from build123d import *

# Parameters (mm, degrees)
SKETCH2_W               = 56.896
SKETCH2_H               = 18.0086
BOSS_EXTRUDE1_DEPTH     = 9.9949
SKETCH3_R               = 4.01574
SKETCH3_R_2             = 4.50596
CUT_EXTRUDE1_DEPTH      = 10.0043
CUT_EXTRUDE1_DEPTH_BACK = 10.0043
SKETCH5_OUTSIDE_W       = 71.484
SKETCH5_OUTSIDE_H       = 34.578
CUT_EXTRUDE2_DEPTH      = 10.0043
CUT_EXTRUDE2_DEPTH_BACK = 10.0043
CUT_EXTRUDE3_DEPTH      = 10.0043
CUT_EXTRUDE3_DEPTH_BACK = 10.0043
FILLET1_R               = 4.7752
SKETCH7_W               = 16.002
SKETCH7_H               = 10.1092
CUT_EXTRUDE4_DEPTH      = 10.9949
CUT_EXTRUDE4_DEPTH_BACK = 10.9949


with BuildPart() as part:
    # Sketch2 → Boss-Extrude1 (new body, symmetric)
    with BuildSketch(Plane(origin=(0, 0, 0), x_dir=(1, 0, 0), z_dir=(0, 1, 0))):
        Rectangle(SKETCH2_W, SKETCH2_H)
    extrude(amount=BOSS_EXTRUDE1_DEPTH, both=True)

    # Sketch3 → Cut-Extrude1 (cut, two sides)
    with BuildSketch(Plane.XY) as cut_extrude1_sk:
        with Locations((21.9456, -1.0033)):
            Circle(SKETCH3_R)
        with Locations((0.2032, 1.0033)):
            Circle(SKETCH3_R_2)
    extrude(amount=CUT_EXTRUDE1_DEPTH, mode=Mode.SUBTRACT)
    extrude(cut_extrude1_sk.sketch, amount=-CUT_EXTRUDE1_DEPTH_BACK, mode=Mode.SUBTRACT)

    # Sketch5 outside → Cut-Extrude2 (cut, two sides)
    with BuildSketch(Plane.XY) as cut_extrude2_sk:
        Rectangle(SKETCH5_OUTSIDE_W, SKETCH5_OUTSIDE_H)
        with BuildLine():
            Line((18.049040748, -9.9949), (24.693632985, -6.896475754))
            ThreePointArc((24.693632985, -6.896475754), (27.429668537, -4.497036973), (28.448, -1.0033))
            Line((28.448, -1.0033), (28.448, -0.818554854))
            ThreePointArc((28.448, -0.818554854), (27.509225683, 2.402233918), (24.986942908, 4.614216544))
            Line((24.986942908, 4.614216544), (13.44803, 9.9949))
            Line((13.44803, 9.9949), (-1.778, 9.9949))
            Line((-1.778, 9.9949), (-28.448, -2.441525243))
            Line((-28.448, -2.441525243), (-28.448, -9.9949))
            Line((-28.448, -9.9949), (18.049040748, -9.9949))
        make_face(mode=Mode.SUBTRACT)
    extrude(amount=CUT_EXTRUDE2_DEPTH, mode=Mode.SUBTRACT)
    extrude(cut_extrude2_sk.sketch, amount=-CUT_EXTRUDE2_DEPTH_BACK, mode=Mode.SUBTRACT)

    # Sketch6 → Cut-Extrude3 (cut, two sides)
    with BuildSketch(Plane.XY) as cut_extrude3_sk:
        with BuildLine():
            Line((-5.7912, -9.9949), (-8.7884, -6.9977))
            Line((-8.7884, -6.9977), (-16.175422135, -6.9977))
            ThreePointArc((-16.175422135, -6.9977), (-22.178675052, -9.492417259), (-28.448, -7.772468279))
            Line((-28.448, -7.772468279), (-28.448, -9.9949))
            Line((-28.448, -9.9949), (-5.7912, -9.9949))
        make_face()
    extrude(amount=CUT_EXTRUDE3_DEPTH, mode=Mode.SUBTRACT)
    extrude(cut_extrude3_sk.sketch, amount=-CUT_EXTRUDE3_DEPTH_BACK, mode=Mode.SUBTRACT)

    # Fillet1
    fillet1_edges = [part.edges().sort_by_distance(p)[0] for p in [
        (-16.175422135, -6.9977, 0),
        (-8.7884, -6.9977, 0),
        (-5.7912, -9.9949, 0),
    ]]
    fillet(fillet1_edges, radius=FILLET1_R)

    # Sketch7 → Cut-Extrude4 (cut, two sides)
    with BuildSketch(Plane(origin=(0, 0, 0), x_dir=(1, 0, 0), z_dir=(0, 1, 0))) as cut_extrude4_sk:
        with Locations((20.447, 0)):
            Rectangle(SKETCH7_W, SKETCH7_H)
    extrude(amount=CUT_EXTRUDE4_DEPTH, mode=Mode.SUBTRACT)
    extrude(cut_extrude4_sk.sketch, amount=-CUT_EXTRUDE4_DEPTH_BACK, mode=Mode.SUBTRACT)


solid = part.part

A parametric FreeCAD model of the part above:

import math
import FreeCAD as App
import Part
import Sketcher
from FreeCAD import Vector
Q = App.Units.Quantity


def edges_at(feature, points):
    """Names of the edges that pass closest to the given points."""
    edges = feature.Shape.Edges
    near = lambda p: min(range(len(edges)), key=lambda i: edges[i].distToShape(Part.Vertex(*p))[0])
    return sorted({f"Edge{near(p) + 1}" for p in points})


def add_polygon(sketch, points):
    """Adds a closed chain of lines whose ends are joined by coincident constraints."""
    first, n = sketch.GeometryCount, len(points)
    for a, b in zip(points, points[1:] + points[:1]):
        sketch.addGeometry(Part.LineSegment(App.Vector(*a, 0), App.Vector(*b, 0)), False)
    for i in range(n):
        sketch.addConstraint(Sketcher.Constraint("Coincident", first + i, 2, first + (i + 1) % n, 1))

doc = App.newDocument("Part")
params = doc.addObject("Spreadsheet::Sheet", "Params")
for row, (alias, value) in enumerate([
    ("sketch1_width", "2.24 in"),
    ("sketch1_height", "0.709 in"),
    ("pad1_length", "0.787 in"),
    ("sketch3_radius", "0.236 in"),
    ("sketch3_radius2", "0.256 in"),
    ("sketch4_radius", "0.394 in"),
    ("sketch4_width", "0.892 in"),
    ("fillet_radius", "0.188 in"),
    ("sketch5_width", "0.63 in"),
    ("sketch5_height", "0.398 in"),
], start=1):
    params.set(f"A{row}", alias)
    params.set(f"B{row}", "=" + value)
    params.setAlias(f"B{row}", alias)

body = doc.addObject("PartDesign::Body", "Body")

sketch1 = body.newObject("Sketcher::SketchObject", "Sketch")
sketch1.AttachmentSupport = (doc.getObject("XZ_Plane"), [""])
sketch1.MapMode = "FlatFace"
add_polygon(sketch1, [(-28.448, -9.0043), (-28.448, 9.0043), (28.448, 9.0043), (28.448, -9.0043)])
sketch1.addConstraint(Sketcher.Constraint("Vertical", 0))
sketch1.addConstraint(Sketcher.Constraint("Horizontal", 1))
sketch1.addConstraint(Sketcher.Constraint("Vertical", 2))
sketch1.addConstraint(Sketcher.Constraint("Horizontal", 3))
sketch1.addConstraint(Sketcher.Constraint("Symmetric", 0, 2, 2, 2, -1, 1))
sketch1.addConstraint(Sketcher.Constraint("DistanceX", 1, 1, 1, 2, Q("2.24 in")))
sketch1.addConstraint(Sketcher.Constraint("DistanceY", 0, 1, 0, 2, Q("0.709 in")))
sketch1.setExpression("Constraints[9]", "Params.sketch1_width")
sketch1.setExpression("Constraints[10]", "Params.sketch1_height")
pad1 = body.newObject("PartDesign::Pad", "Pad")
pad1.Profile = sketch1
pad1.setExpression("Length", "Params.pad1_length")
pad1.Midplane = True

sketch2 = body.newObject("Sketcher::SketchObject", "Sketch001")
sketch2.AttachmentSupport = (doc.getObject("XY_Plane"), [""])
sketch2.MapMode = "FlatFace"
sketch2.addGeometry(Part.Circle(Vector(21.9456, -1.0033, 0), Vector(0, 0, 1), 4.01574), False)
sketch2.addGeometry(Part.Circle(Vector(0.2032, 1.0033, 0), Vector(0, 0, 1), 4.50596), False)
sketch2.addConstraint(Sketcher.Constraint("Diameter", 0, Q("0.3162 in")))
sketch2.addConstraint(Sketcher.Constraint("Diameter", 1, Q("0.3548 in")))
sketch2.addConstraint(Sketcher.Constraint("DistanceX", -1, 1, 0, 3, Q("0.864 in")))
sketch2.addConstraint(Sketcher.Constraint("DistanceX", -1, 1, 1, 3, Q("0.008 in")))
sketch2.addConstraint(Sketcher.Constraint("DistanceY", 0, 3, 1, 3, Q("0.079 in")))
sketch2.addConstraint(Sketcher.Constraint("DistanceY", 0, 3, -1, 1, Q("0.0395 in")))
pocket1 = body.newObject("PartDesign::Pocket", "Pocket")
pocket1.Profile = sketch2
pocket1.Type = "ThroughAll"
pocket1.Midplane = True

sketch3 = body.newObject("Sketcher::SketchObject", "Sketch002")
sketch3.AttachmentSupport = (doc.getObject("XY_Plane"), [""])
sketch3.MapMode = "FlatFace"
add_polygon(sketch3, [(-35.742, 17.289), (-35.742, -17.289), (35.742, -17.289), (35.742, 17.289)])
sketch3.addGeometry(Part.LineSegment(Vector(24.693633, -6.896476, 0), Vector(18.049041, -9.9949, 0)), False)
sketch3.addGeometry(Part.LineSegment(Vector(18.049041, -9.9949, 0), Vector(-28.448, -9.9949, 0)), False)
sketch3.addGeometry(Part.LineSegment(Vector(-28.448, -9.9949, 0), Vector(-28.448, -2.441525, 0)), False)
sketch3.addGeometry(Part.LineSegment(Vector(-28.448, -2.441525, 0), Vector(-1.778, 9.9949, 0)), False)
sketch3.addGeometry(Part.LineSegment(Vector(-1.778, 9.9949, 0), Vector(13.44803, 9.9949, 0)), False)
sketch3.addGeometry(Part.LineSegment(Vector(13.44803, 9.9949, 0), Vector(24.986943, 4.614217, 0)), False)
sketch3.addGeometry(Part.ArcOfCircle(Part.Circle(Vector(22.4536, -0.818555, 0), Vector(0, 0, 1), 5.9944), math.radians(0), math.radians(65)), False)
sketch3.addGeometry(Part.LineSegment(Vector(28.448, -0.818555, 0), Vector(28.448, -1.0033, 0)), False)
sketch3.addGeometry(Part.ArcOfCircle(Part.Circle(Vector(21.9456, -1.0033, 0), Vector(0, 0, 1), 6.5024), math.radians(-65), math.radians(0)), False)
sketch3.addConstraint(Sketcher.Constraint("Coincident", 4, 2, 5, 1))
sketch3.addConstraint(Sketcher.Constraint("Coincident", 5, 2, 6, 1))
sketch3.addConstraint(Sketcher.Constraint("Coincident", 6, 2, 7, 1))
sketch3.addConstraint(Sketcher.Constraint("Coincident", 7, 2, 8, 1))
sketch3.addConstraint(Sketcher.Constraint("Coincident", 8, 2, 9, 1))
sketch3.addConstraint(Sketcher.Constraint("Tangent", 9, 2, 10, 2))
sketch3.addConstraint(Sketcher.Constraint("Tangent", 10, 1, 11, 1))
sketch3.addConstraint(Sketcher.Constraint("Tangent", 11, 2, 12, 2))
sketch3.addConstraint(Sketcher.Constraint("Tangent", 12, 1, 4, 1))
sketch3.addConstraint(Sketcher.Constraint("Vertical", 0))
sketch3.addConstraint(Sketcher.Constraint("Horizontal", 1))
sketch3.addConstraint(Sketcher.Constraint("Vertical", 2))
sketch3.addConstraint(Sketcher.Constraint("Horizontal", 3))
sketch3.addConstraint(Sketcher.Constraint("Horizontal", 5))
sketch3.addConstraint(Sketcher.Constraint("Vertical", 6))
sketch3.addConstraint(Sketcher.Constraint("Horizontal", 8))
sketch3.addConstraint(Sketcher.Constraint("Vertical", 11))
sketch3.addConstraint(Sketcher.Constraint("Symmetric", 0, 2, 2, 2, -1, 1))
sketch3.addConstraint(Sketcher.Constraint("Parallel", 4, 7))
sketch3.addConstraint(Sketcher.Constraint("Angle", 4, Q("-155 deg")))
sketch3.addConstraint(Sketcher.Constraint("Angle", 9, Q("-25 deg")))
sketch3.addConstraint(Sketcher.Constraint("Radius", 10, Q("0.236 in")))
sketch3.addConstraint(Sketcher.Constraint("Radius", 12, Q("0.256 in")))
sketch3.addConstraint(Sketcher.Constraint("DistanceX", 5, 2, -1, 1, Q("1.12 in")))
sketch3.addConstraint(Sketcher.Constraint("DistanceX", 7, 2, -1, 1, Q("0.07 in")))
sketch3.addConstraint(Sketcher.Constraint("DistanceX", -1, 1, 10, 1, Q("1.12 in")))
sketch3.addConstraint(Sketcher.Constraint("DistanceY", 4, 2, 12, 3, Q("0.354 in")))
sketch3.addConstraint(Sketcher.Constraint("DistanceY", 12, 3, 7, 2, Q("0.433 in")))
sketch3.addConstraint(Sketcher.Constraint("DistanceX", 1, 1, 1, 2, Q("71.484 mm")))
sketch3.addConstraint(Sketcher.Constraint("DistanceY", 0, 2, 0, 1, Q("34.578 mm")))
sketch3.addConstraint(Sketcher.Constraint("DistanceY", 12, 3, -1, 1, Q("0.0395 in")))
sketch3.addConstraint(Sketcher.Constraint("DistanceX", 8, 1, 8, 2, Q("15.22603 mm")))
sketch3.setExpression("Constraints[25]", "Params.sketch3_radius")
sketch3.setExpression("Constraints[26]", "Params.sketch3_radius2")
pocket2 = body.newObject("PartDesign::Pocket", "Pocket001")
pocket2.Profile = sketch3
pocket2.Type = "ThroughAll"
pocket2.Midplane = True

sketch4 = body.newObject("Sketcher::SketchObject", "Sketch003")
sketch4.AttachmentSupport = (doc.getObject("XY_Plane"), [""])
sketch4.MapMode = "FlatFace"
sketch4.addGeometry(Part.LineSegment(Vector(-5.7912, -9.9949, 0), Vector(-8.7884, -6.9977, 0)), False)
sketch4.addGeometry(Part.LineSegment(Vector(-8.7884, -6.9977, 0), Vector(-16.175422, -6.9977, 0)), False)
sketch4.addGeometry(Part.ArcOfCircle(Part.Circle(Vector(-22.8092, 0.4953, 0), Vector(0, 0, 1), 10.0076), math.radians(-124.294849), math.radians(-48.480569)), False)
sketch4.addGeometry(Part.LineSegment(Vector(-28.448, -7.772468, 0), Vector(-28.448, -9.9949, 0)), False)
sketch4.addGeometry(Part.LineSegment(Vector(-28.448, -9.9949, 0), Vector(-5.7912, -9.9949, 0)), False)
sketch4.addConstraint(Sketcher.Constraint("Coincident", 0, 2, 1, 1))
sketch4.addConstraint(Sketcher.Constraint("Coincident", 1, 2, 2, 2))
sketch4.addConstraint(Sketcher.Constraint("Coincident", 2, 1, 3, 1))
sketch4.addConstraint(Sketcher.Constraint("Coincident", 3, 2, 4, 1))
sketch4.addConstraint(Sketcher.Constraint("Coincident", 4, 2, 0, 1))
sketch4.addConstraint(Sketcher.Constraint("Horizontal", 1))
sketch4.addConstraint(Sketcher.Constraint("Vertical", 3))
sketch4.addConstraint(Sketcher.Constraint("Horizontal", 4))
sketch4.addConstraint(Sketcher.Constraint("Angle", 0, Q("135 deg")))
sketch4.addConstraint(Sketcher.Constraint("Radius", 2, Q("0.394 in")))
sketch4.addConstraint(Sketcher.Constraint("DistanceX", 4, 1, 4, 2, Q("0.892 in")))
sketch4.addConstraint(Sketcher.Constraint("DistanceX", 2, 1, -1, 1, Q("1.12 in")))
sketch4.addConstraint(Sketcher.Constraint("DistanceX", 2, 3, 4, 2, Q("0.67 in")))
sketch4.addConstraint(Sketcher.Constraint("DistanceX", 0, 2, -1, 1, Q("0.346 in")))
sketch4.addConstraint(Sketcher.Constraint("DistanceY", 0, 2, 2, 3, Q("0.295 in")))
sketch4.addConstraint(Sketcher.Constraint("DistanceY", -1, 1, 2, 3, Q("0.0195 in")))
sketch4.setExpression("Constraints[9]", "Params.sketch4_radius")
sketch4.setExpression("Constraints[10]", "Params.sketch4_width")
pocket3 = body.newObject("PartDesign::Pocket", "Pocket002")
pocket3.Profile = sketch4
pocket3.Type = "ThroughAll"
pocket3.Midplane = True
doc.recompute()

fillet = body.newObject("PartDesign::Fillet", "Fillet")
fillet.Base = (pocket3, edges_at(pocket3, [(-16.175, -6.998, 0), (-8.788, -6.998, 0), (-5.791, -9.995, 0)]))
fillet.setExpression("Radius", "Params.fillet_radius")

sketch5 = body.newObject("Sketcher::SketchObject", "Sketch004")
sketch5.AttachmentSupport = (doc.getObject("XZ_Plane"), [""])
sketch5.MapMode = "FlatFace"
add_polygon(sketch5, [(12.446, -5.0546), (12.446, 5.0546), (28.448, 5.0546), (28.448, -5.0546)])
sketch5.addConstraint(Sketcher.Constraint("Vertical", 0))
sketch5.addConstraint(Sketcher.Constraint("Horizontal", 1))
sketch5.addConstraint(Sketcher.Constraint("Vertical", 2))
sketch5.addConstraint(Sketcher.Constraint("Horizontal", 3))
sketch5.addConstraint(Sketcher.Constraint("DistanceX", 1, 1, 1, 2, Q("0.63 in")))
sketch5.addConstraint(Sketcher.Constraint("DistanceY", 0, 1, 0, 2, Q("0.398 in")))
sketch5.addConstraint(Sketcher.Constraint("DistanceX", -1, 1, 0, 2, Q("0.49 in")))
sketch5.addConstraint(Sketcher.Constraint("DistanceY", -1, 1, 0, 2, Q("0.199 in")))
sketch5.setExpression("Constraints[8]", "Params.sketch5_width")
sketch5.setExpression("Constraints[9]", "Params.sketch5_height")
pocket4 = body.newObject("PartDesign::Pocket", "Pocket003")
pocket4.Profile = sketch5
pocket4.Type = "ThroughAll"
pocket4.Midplane = True

doc.recompute()
